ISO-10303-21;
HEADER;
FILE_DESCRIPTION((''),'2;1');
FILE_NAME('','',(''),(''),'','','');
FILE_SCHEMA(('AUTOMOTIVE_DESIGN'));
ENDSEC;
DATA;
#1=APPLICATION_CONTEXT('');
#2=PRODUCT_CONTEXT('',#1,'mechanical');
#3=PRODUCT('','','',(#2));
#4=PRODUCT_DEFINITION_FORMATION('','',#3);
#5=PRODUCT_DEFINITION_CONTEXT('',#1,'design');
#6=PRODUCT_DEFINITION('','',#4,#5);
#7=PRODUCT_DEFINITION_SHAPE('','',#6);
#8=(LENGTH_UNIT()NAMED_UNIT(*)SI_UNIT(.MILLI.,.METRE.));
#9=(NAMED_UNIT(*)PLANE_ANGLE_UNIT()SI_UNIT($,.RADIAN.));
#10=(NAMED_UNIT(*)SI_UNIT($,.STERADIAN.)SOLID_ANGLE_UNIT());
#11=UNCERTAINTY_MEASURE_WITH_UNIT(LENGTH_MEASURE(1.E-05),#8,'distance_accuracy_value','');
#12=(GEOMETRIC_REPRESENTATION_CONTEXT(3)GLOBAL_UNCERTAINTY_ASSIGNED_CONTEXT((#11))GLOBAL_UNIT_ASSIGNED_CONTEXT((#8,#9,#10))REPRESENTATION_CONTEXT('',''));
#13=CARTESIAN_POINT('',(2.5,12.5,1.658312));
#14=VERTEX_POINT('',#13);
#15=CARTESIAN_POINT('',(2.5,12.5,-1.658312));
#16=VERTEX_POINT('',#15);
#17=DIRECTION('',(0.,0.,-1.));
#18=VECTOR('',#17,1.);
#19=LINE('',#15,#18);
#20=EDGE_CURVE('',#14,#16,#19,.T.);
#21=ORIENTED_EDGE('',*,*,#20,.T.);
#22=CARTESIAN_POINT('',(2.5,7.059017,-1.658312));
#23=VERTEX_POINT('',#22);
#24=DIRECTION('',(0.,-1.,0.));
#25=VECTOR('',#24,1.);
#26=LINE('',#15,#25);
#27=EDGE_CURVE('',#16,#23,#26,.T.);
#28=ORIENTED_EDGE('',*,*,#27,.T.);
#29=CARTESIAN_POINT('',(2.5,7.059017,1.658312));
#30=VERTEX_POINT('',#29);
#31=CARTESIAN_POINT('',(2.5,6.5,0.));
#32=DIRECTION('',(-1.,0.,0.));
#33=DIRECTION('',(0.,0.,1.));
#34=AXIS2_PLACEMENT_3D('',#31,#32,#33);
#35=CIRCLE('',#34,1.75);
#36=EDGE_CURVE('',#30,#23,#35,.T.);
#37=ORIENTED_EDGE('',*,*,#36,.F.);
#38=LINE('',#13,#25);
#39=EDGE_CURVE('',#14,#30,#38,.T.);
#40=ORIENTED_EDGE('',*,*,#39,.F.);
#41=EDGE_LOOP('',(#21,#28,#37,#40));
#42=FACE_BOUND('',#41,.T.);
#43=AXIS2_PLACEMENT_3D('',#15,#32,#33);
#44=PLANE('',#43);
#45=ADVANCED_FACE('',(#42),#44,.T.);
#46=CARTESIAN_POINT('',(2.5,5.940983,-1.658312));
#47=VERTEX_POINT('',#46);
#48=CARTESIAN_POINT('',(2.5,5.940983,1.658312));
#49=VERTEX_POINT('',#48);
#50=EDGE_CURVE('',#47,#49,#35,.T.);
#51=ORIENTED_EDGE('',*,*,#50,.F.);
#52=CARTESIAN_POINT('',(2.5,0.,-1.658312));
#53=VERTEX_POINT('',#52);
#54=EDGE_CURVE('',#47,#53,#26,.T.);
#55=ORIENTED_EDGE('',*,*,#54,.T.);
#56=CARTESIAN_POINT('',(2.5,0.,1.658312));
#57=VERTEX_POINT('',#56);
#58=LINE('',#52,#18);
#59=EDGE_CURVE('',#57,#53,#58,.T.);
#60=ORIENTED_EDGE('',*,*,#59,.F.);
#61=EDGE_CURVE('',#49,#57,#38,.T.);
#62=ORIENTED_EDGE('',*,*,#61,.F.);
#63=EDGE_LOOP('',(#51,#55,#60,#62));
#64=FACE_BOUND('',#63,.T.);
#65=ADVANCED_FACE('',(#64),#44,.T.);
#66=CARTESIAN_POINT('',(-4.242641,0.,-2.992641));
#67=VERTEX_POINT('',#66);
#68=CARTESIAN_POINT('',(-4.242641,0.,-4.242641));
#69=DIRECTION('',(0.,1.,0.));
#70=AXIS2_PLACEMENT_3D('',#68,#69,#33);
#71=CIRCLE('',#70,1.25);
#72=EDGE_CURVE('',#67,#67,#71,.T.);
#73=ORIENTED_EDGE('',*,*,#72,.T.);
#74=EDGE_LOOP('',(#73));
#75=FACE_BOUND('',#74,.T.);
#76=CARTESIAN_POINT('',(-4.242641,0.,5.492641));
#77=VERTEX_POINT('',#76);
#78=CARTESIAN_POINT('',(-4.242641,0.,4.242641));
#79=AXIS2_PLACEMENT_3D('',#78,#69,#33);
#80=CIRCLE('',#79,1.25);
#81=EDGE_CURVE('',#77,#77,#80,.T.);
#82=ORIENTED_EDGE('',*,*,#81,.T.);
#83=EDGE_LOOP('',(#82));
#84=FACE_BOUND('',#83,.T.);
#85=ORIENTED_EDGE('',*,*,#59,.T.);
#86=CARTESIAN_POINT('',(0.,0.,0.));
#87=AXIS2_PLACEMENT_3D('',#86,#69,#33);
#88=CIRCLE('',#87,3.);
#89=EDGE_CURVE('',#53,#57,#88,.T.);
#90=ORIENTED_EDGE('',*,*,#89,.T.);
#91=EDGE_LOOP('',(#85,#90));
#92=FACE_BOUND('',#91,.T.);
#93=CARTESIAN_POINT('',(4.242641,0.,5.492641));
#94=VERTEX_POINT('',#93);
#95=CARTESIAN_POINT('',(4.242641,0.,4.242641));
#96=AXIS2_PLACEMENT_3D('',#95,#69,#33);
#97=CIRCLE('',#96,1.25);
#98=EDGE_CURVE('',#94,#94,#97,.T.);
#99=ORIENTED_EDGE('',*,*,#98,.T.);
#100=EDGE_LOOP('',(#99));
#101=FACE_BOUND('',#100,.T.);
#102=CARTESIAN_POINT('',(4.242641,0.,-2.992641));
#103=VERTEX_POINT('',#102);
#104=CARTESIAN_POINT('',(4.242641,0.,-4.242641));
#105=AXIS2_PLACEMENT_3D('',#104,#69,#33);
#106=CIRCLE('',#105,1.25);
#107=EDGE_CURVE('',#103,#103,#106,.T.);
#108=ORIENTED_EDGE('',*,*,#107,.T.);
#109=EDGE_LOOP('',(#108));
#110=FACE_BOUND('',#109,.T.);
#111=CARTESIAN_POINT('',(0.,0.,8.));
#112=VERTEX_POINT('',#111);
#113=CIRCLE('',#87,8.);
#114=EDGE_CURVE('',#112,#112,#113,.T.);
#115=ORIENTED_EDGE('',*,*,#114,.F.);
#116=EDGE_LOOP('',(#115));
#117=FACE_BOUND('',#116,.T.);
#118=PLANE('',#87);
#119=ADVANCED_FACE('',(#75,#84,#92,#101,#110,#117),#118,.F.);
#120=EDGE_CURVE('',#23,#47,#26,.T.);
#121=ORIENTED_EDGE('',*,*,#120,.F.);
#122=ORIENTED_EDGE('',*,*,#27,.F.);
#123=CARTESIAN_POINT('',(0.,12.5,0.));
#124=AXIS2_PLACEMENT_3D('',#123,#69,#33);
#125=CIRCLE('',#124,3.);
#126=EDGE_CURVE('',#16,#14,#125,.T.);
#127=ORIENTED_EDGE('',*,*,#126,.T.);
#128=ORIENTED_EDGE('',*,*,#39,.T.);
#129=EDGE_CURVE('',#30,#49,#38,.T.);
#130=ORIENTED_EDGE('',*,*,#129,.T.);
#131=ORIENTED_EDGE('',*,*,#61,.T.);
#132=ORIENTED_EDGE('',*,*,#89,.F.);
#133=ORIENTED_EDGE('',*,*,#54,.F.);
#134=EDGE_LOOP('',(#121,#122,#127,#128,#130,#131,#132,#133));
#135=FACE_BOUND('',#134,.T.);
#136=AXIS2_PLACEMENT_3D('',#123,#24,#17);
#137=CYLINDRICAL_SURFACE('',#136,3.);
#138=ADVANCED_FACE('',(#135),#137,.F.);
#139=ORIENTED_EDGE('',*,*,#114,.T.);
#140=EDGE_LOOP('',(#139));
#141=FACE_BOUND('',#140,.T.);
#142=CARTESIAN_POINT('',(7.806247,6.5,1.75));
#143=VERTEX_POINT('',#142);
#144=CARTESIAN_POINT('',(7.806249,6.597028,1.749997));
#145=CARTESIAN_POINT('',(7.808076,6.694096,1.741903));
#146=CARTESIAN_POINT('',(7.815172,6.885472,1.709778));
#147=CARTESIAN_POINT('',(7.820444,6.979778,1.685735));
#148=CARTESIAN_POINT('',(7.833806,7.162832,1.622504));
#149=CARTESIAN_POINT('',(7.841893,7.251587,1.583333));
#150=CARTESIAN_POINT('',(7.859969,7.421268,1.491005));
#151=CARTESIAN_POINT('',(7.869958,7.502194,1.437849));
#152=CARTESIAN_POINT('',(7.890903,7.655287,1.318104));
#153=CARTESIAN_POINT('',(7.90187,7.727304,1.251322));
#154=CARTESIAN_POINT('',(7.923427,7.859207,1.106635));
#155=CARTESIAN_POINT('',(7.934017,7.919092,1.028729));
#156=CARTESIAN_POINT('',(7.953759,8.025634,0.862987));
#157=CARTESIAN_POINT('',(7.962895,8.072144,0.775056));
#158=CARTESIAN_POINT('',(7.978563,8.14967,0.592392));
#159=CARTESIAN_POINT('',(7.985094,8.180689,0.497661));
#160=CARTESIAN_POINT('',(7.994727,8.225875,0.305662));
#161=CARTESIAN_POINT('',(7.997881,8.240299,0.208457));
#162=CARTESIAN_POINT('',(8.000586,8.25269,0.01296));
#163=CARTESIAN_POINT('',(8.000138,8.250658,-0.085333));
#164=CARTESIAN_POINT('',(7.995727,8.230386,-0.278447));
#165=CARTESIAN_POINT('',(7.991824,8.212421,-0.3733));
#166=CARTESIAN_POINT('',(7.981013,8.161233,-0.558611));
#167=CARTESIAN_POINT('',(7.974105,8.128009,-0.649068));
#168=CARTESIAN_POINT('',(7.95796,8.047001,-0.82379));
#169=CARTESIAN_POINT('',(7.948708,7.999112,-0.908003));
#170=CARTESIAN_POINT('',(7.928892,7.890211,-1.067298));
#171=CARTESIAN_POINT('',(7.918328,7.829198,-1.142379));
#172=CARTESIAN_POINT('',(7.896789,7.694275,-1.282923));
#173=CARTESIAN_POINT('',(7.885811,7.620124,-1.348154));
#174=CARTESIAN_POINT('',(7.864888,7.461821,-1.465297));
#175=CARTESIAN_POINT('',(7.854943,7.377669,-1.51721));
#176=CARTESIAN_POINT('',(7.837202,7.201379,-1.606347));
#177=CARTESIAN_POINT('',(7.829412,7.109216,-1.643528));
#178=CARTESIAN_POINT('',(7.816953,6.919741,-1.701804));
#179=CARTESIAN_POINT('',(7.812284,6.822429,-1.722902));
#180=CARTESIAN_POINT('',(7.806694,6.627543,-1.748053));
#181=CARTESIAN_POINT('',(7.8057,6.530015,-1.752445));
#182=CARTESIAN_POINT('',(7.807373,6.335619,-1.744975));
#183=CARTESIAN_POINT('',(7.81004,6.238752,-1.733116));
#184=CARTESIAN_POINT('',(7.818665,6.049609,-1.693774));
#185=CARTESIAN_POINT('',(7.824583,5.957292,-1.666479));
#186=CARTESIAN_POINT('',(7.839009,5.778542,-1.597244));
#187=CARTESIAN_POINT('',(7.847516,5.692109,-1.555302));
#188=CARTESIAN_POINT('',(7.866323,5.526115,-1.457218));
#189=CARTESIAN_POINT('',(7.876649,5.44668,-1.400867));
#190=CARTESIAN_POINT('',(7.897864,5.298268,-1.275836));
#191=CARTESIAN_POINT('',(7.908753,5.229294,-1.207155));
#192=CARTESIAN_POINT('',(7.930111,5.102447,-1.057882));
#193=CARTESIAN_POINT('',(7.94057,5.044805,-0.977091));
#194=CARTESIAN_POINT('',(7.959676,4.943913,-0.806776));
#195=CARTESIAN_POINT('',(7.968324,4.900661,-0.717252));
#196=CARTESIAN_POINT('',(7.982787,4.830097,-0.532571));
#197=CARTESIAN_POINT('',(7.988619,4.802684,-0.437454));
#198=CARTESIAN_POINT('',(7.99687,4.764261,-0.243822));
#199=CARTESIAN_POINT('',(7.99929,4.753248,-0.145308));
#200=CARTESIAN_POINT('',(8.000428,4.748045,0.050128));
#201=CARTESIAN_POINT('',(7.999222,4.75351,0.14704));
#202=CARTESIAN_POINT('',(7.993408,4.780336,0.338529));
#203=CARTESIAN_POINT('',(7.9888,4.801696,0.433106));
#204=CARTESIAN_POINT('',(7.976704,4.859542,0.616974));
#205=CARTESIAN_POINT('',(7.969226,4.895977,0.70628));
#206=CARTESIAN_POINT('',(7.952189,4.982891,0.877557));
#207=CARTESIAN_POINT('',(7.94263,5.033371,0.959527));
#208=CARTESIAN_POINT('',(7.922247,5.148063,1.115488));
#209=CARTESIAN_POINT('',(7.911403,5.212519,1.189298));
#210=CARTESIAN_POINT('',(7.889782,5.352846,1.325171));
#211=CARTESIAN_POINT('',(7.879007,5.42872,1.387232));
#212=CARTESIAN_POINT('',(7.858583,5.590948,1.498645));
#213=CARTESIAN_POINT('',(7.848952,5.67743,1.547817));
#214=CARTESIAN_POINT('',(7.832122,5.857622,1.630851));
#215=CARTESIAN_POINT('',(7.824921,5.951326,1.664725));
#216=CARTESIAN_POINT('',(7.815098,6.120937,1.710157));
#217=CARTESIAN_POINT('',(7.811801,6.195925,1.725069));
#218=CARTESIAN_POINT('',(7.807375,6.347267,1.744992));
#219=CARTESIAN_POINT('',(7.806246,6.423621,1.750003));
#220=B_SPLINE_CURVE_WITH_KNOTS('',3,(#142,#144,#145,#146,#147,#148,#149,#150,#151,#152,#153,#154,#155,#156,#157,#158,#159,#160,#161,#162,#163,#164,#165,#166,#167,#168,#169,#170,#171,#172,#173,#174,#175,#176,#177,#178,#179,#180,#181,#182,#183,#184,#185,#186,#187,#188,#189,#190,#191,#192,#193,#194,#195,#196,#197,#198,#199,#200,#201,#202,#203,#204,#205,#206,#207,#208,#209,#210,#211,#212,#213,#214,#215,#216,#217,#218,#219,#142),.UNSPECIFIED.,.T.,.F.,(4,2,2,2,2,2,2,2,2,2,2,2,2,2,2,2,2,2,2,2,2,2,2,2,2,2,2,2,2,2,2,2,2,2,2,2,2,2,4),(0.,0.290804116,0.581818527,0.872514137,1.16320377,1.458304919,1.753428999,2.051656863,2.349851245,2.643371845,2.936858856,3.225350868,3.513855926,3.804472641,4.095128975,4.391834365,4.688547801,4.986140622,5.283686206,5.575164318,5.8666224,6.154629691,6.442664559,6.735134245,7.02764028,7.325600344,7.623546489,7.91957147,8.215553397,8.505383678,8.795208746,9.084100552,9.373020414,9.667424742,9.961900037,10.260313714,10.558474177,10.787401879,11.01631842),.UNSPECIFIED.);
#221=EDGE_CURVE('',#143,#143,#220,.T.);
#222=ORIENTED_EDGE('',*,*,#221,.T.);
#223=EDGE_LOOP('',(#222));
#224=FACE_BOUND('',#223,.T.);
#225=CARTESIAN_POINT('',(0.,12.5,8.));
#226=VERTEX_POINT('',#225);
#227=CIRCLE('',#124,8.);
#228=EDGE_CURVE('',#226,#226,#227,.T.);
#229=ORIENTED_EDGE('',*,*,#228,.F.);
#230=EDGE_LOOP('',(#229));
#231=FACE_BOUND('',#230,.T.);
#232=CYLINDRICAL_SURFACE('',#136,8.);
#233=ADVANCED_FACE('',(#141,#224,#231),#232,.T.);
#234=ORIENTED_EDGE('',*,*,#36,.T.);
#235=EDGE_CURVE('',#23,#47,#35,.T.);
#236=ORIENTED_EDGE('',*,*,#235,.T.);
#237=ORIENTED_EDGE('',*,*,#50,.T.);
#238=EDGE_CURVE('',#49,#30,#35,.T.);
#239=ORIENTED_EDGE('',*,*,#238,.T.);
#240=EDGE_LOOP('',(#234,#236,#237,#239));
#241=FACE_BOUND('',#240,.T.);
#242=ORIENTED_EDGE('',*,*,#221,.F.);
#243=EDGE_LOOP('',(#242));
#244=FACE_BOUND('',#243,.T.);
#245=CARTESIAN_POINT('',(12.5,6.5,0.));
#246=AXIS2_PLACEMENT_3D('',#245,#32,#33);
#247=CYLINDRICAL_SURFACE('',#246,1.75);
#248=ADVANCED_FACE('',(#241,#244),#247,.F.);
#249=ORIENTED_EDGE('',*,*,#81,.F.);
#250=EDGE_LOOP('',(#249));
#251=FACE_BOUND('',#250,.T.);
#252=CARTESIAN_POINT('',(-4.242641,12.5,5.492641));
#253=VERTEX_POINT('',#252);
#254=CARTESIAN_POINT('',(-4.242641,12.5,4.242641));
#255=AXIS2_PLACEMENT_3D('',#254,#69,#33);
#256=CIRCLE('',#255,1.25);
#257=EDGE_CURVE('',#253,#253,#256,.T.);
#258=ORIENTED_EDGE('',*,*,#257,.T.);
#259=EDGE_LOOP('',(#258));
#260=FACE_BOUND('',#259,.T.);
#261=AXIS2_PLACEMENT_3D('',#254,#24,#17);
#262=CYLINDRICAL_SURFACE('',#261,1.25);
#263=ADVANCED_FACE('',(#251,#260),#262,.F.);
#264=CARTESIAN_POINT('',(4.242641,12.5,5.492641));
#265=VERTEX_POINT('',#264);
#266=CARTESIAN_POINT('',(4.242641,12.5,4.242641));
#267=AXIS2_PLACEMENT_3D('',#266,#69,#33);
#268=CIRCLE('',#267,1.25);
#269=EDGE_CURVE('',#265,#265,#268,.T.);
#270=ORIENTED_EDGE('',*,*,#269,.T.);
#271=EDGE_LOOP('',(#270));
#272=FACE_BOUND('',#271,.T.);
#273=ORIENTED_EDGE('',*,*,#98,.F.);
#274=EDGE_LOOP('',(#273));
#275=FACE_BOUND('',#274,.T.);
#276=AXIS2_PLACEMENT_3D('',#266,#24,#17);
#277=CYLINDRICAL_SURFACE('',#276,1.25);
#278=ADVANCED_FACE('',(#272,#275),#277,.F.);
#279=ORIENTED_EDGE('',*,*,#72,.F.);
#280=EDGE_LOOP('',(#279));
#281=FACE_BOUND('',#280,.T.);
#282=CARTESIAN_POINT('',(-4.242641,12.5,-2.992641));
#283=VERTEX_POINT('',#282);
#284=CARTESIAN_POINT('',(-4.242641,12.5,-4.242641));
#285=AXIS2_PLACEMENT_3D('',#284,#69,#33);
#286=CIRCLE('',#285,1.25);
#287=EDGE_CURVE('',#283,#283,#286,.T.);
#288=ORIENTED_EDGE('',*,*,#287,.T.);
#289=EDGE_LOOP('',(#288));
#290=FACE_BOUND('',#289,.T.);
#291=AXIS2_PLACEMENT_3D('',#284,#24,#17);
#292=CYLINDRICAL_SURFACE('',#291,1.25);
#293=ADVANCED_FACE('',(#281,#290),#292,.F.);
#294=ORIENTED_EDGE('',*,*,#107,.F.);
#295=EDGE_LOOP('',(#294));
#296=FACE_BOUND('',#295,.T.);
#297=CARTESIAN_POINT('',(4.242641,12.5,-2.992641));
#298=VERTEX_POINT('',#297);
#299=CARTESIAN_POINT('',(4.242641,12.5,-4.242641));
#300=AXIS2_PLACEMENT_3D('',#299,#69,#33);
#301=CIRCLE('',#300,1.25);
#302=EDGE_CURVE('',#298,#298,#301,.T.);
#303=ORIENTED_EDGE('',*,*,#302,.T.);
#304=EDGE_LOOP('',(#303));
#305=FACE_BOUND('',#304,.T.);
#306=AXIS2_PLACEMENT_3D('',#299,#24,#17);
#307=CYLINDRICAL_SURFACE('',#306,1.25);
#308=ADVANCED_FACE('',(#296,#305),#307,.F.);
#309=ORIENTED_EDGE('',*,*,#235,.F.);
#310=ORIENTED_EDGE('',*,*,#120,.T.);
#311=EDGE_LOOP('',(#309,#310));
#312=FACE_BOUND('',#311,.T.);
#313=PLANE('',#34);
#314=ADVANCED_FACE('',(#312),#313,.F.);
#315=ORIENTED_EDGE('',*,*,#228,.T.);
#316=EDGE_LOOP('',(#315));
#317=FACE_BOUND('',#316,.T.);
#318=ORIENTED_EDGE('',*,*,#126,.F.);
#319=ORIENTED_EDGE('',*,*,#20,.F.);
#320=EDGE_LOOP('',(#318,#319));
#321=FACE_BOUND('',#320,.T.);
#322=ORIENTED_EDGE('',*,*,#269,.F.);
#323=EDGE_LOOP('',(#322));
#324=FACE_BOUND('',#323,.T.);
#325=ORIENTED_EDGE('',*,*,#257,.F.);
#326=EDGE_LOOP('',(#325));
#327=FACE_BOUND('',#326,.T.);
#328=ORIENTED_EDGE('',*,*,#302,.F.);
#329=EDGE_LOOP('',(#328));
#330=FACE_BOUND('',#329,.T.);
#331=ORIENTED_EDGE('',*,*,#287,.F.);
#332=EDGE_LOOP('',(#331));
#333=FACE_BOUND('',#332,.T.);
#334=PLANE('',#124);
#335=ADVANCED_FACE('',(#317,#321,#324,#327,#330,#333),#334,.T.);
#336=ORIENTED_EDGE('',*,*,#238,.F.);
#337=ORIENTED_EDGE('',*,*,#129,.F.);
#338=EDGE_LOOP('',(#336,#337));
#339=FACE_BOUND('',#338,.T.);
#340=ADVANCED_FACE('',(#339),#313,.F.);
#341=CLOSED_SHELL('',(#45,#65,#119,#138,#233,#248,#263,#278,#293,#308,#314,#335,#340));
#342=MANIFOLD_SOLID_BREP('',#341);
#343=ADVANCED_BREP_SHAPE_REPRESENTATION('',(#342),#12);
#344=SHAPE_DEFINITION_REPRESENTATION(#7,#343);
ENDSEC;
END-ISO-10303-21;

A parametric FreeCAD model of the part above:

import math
import FreeCAD as App
import Part
import Sketcher
from FreeCAD import Vector

doc = App.newDocument("Part")
body = doc.addObject("PartDesign::Body", "Body")

sketch1 = body.newObject("Sketcher::SketchObject", "Sketch")
sketch1.AttachmentSupport = (doc.getObject("XZ_Plane"), [""])
sketch1.MapMode = "FlatFace"
sketch1.addGeometry([
    Part.Circle(Vector(0, 0, 0), Vector(0, 0, 1), 8),
    Part.Circle(Vector(-4.2, -4.2, 0), Vector(0, 0, 1), 1.2),
    Part.ArcOfCircle(Part.Circle(Vector(0, 0, 0), Vector(0, 0, 1), 3), math.radians(34), math.radians(326)),
    Part.LineSegment(Vector(2.5, -1.7, 0), Vector(2.5, 1.7, 0)),
    Part.Circle(Vector(-4.2, 4.2, 0), Vector(0, 0, 1), 1.2),
    Part.Circle(Vector(4.2, -4.2, 0), Vector(0, 0, 1), 1.2),
    Part.Circle(Vector(4.2, 4.2, 0), Vector(0, 0, 1), 1.2),
], False)
sketch1.addConstraint([
    Sketcher.Constraint("Coincident", 2, 1, 3, 2),
    Sketcher.Constraint("Coincident", 3, 1, 2, 2),
    Sketcher.Constraint("Vertical", 3),
    Sketcher.Constraint("Coincident", 0, 3, -1, 1),
    Sketcher.Constraint("Coincident", 2, 3, -1, 1),
    Sketcher.Constraint("Equal", 1, 4),
    Sketcher.Constraint("Equal", 4, 5),
    Sketcher.Constraint("Equal", 5, 6),
    Sketcher.Constraint("Symmetric", 4, 3, 5, 3, -1, 1),
    Sketcher.Constraint("Symmetric", 1, 3, 6, 3, -1, 1),
    Sketcher.Constraint("Symmetric", 1, 3, 5, 3, -2),
    Sketcher.Constraint("Diameter", 0, 16.0),
    Sketcher.Constraint("Radius", 2, 3.0),
    Sketcher.Constraint("Diameter", 1, 2.5),
    Sketcher.Constraint("DistanceX", -1, 1, 2, 1, 2.5),
    Sketcher.Constraint("DistanceX", 1, 3, -1, 1, 4.242641),
    Sketcher.Constraint("DistanceY", 1, 3, -1, 1, 4.242641),
])
pad1 = body.newObject("PartDesign::Pad", "Pad")
pad1.Profile = sketch1
pad1.Length = 12.5
pad1.Reversed = True

sketch2 = body.newObject("Sketcher::SketchObject", "Sketch001")
sketch2.AttachmentSupport = (doc.getObject("YZ_Plane"), [""])
sketch2.MapMode = "FlatFace"
sketch2.AttachmentOffset = App.Placement(Vector(0, 0, 2.5), App.Rotation())
sketch2.addGeometry(Part.Circle(Vector(6.5, 0, 0), Vector(0, 0, 1), 1.8), False)
sketch2.addConstraint([
    Sketcher.Constraint("PointOnObject", 0, 3, -1),
    Sketcher.Constraint("Diameter", 0, 3.5),
    Sketcher.Constraint("DistanceX", -1, 1, 0, 3, 6.5),
])
pocket1 = body.newObject("PartDesign::Pocket", "Pocket")
pocket1.Profile = sketch2
pocket1.Length = 10
pocket1.Reversed = True

doc.recompute()
